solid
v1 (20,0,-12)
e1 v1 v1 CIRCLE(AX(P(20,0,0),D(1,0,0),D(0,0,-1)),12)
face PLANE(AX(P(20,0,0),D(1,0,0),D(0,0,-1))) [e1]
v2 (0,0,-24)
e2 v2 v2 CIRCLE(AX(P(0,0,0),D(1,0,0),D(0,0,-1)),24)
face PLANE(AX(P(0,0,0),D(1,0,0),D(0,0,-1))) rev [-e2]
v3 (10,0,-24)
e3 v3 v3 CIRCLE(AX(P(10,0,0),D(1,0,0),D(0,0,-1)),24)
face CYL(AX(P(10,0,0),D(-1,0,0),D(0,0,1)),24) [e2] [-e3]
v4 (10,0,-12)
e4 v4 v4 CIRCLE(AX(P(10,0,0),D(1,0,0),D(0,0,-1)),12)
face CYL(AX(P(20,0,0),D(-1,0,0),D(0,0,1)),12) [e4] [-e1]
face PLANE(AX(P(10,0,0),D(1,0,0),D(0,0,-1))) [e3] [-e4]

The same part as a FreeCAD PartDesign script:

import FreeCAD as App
import Part
import Sketcher

V = App.Vector
Q = App.Units.Quantity

doc = App.newDocument("Part")
params = doc.addObject("Spreadsheet::Sheet", "Params")
for row, (alias, value) in enumerate([
    ("sketch1_diameter", "48 mm"),
    ("pad1_length", "10 mm"),
    ("sketch2_diameter", "24 mm"),
    ("pad2_length", "10 mm"),
], start=1):
    params.set(f"A{row}", alias)
    params.set(f"B{row}", "=" + value)
    params.setAlias(f"B{row}", alias)

body = doc.addObject("PartDesign::Body", "Body")

# Sketch on YZ plane
sketch1 = doc.addObject("Sketcher::SketchObject", "Sketch")
body.addObject(sketch1)
sketch1.AttachmentSupport = (doc.YZ_Plane, [""])
sketch1.MapMode = "FlatFace"
sketch1.addGeometry(Part.Circle(V(0, 0, 0), V(0, 0, 1), 24), False)
sketch1.addConstraint([
    Sketcher.Constraint("Coincident", 0, 3, -1, 1),
    Sketcher.Constraint("Diameter", 0, Q("48 mm")),
])
sketch1.setExpression("Constraints[1]", "Params.sketch1_diameter")
pad1 = doc.addObject("PartDesign::Pad", "Pad")
body.addObject(pad1)
pad1.Profile = sketch1
pad1.setExpression("Length", "Params.pad1_length")

# Sketch on YZ plane
sketch2 = doc.addObject("Sketcher::SketchObject", "Sketch001")
body.addObject(sketch2)
sketch2.AttachmentSupport = (doc.YZ_Plane, [""])
sketch2.MapMode = "FlatFace"
sketch2.AttachmentOffset = App.Placement(V(0, 0, 10), App.Rotation())
sketch2.addGeometry(Part.Circle(V(0, 0, 0), V(0, 0, 1), 12), False)
sketch2.addConstraint([
    Sketcher.Constraint("Coincident", 0, 3, -1, 1),
    Sketcher.Constraint("Diameter", 0, Q("24 mm")),
])
sketch2.setExpression("Constraints[1]", "Params.sketch2_diameter")
pad2 = doc.addObject("PartDesign::Pad", "Pad001")
body.addObject(pad2)
pad2.Profile = sketch2
pad2.setExpression("Length", "Params.pad2_length")

doc.recompute()
